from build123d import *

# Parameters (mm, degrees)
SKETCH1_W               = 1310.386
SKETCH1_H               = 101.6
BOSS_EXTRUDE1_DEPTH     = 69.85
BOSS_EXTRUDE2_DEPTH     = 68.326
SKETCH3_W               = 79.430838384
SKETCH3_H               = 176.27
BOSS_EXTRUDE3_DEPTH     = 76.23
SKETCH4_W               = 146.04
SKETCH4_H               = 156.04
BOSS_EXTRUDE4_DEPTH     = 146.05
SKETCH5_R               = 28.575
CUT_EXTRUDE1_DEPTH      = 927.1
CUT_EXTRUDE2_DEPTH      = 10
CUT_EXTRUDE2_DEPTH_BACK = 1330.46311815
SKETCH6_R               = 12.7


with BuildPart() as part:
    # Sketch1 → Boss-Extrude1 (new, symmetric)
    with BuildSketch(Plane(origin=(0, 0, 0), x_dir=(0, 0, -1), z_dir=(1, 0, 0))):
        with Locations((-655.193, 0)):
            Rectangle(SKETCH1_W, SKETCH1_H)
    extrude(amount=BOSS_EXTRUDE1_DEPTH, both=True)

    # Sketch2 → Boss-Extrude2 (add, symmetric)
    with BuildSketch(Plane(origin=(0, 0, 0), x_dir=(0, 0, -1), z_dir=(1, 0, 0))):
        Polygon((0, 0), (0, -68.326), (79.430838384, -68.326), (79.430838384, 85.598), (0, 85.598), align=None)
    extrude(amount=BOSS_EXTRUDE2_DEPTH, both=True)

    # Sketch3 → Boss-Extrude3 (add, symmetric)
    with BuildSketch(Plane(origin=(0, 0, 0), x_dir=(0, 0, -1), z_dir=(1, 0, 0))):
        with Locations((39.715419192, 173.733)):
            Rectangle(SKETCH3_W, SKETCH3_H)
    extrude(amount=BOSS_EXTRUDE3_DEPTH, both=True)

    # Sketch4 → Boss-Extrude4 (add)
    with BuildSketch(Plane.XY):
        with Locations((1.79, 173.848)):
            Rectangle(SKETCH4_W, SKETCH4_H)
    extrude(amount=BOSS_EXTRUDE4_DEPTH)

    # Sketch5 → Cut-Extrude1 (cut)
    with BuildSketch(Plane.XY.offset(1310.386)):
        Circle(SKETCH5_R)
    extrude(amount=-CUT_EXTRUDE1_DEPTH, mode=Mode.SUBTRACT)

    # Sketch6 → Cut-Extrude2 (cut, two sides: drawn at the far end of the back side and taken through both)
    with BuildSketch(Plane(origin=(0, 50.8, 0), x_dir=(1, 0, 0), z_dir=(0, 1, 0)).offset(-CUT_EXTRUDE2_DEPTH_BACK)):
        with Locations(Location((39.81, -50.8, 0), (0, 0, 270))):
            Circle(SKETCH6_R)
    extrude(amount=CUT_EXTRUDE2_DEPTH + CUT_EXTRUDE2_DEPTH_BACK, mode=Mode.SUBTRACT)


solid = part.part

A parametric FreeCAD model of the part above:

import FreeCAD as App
import Part
import Sketcher
Q = App.Units.Quantity

doc = App.newDocument("Part")
body = doc.addObject("PartDesign::Body", "Body")

# Sketch on YZ plane
sketch1 = body.newObject("Sketcher::SketchObject", "Sketch")
sketch1.AttachmentSupport = (doc.getObject("YZ_Plane"), [""])
sketch1.MapMode = "FlatFace"
sketch1.addGeometry(Part.LineSegment(App.Vector(51, 1310, 0), App.Vector(-51, 1310, 0)), False)
sketch1.addGeometry(Part.LineSegment(App.Vector(-51, 1310, 0), App.Vector(-51, 0, 0)), False)
sketch1.addGeometry(Part.LineSegment(App.Vector(-51, 0, 0), App.Vector(51, 0, 0)), False)
sketch1.addGeometry(Part.LineSegment(App.Vector(51, 0, 0), App.Vector(51, 1310, 0)), False)
sketch1.addConstraint(Sketcher.Constraint("Coincident", 0, 2, 1, 1))
sketch1.addConstraint(Sketcher.Constraint("Coincident", 1, 2, 2, 1))
sketch1.addConstraint(Sketcher.Constraint("Coincident", 2, 2, 3, 1))
sketch1.addConstraint(Sketcher.Constraint("Coincident", 3, 2, 0, 1))
sketch1.addConstraint(Sketcher.Constraint("Horizontal", 0))
sketch1.addConstraint(Sketcher.Constraint("Vertical", 1))
sketch1.addConstraint(Sketcher.Constraint("Horizontal", 2))
sketch1.addConstraint(Sketcher.Constraint("Vertical", 3))
sketch1.addConstraint(Sketcher.Constraint("Symmetric", 1, 2, 2, 2, -1, 1))
sketch1.addConstraint(Sketcher.Constraint("DistanceX", 0, 2, 0, 1, Q("4 in")))
sketch1.addConstraint(Sketcher.Constraint("DistanceY", 1, 2, 1, 1, Q("51.59 in")))
pad1 = body.newObject("PartDesign::Pad", "Pad")
pad1.Profile = sketch1
pad1.Length = Q("5.5 in")
pad1.Midplane = True

# Sketch on YZ plane
sketch2 = body.newObject("Sketcher::SketchObject", "Sketch001")
sketch2.AttachmentSupport = (doc.getObject("YZ_Plane"), [""])
sketch2.MapMode = "FlatFace"
sketch2.addGeometry(Part.LineSegment(App.Vector(-68, 0, 0), App.Vector(-68, -79, 0)), False)
sketch2.addGeometry(Part.LineSegment(App.Vector(-68, -79, 0), App.Vector(86, -79, 0)), False)
sketch2.addGeometry(Part.LineSegment(App.Vector(86, -79, 0), App.Vector(86, 0, 0)), False)
sketch2.addGeometry(Part.LineSegment(App.Vector(86, 0, 0), App.Vector(-68, 0, 0)), False)
sketch2.addConstraint(Sketcher.Constraint("Coincident", 0, 2, 1, 1))
sketch2.addConstraint(Sketcher.Constraint("Coincident", 1, 2, 2, 1))
sketch2.addConstraint(Sketcher.Constraint("Coincident", 2, 2, 3, 1))
sketch2.addConstraint(Sketcher.Constraint("Coincident", 3, 2, 0, 1))
sketch2.addConstraint(Sketcher.Constraint("Vertical", 0))
sketch2.addConstraint(Sketcher.Constraint("Horizontal", 1))
sketch2.addConstraint(Sketcher.Constraint("Vertical", 2))
sketch2.addConstraint(Sketcher.Constraint("Horizontal", 3))
sketch2.addConstraint(Sketcher.Constraint("PointOnObject", 2, 2, -1))
sketch2.addConstraint(Sketcher.Constraint("DistanceX", 1, 1, 1, 2, Q("6.06 in")))
sketch2.addConstraint(Sketcher.Constraint("DistanceX", 0, 2, -1, 1, Q("2.69 in")))
sketch2.addConstraint(Sketcher.Constraint("DistanceY", 0, 2, 0, 1, Q("79.430838 mm")))
pad2 = body.newObject("PartDesign::Pad", "Pad001")
pad2.Profile = sketch2
pad2.Length = Q("5.38 in")
pad2.Midplane = True

# Sketch on YZ plane
sketch3 = body.newObject("Sketcher::SketchObject", "Sketch002")
sketch3.AttachmentSupport = (doc.getObject("YZ_Plane"), [""])
sketch3.MapMode = "FlatFace"
sketch3.addGeometry(Part.LineSegment(App.Vector(262, 0, 0), App.Vector(86, 0, 0)), False)
sketch3.addGeometry(Part.LineSegment(App.Vector(86, 0, 0), App.Vector(86, -79, 0)), False)
sketch3.addGeometry(Part.LineSegment(App.Vector(86, -79, 0), App.Vector(262, -79, 0)), False)
sketch3.addGeometry(Part.LineSegment(App.Vector(262, -79, 0), App.Vector(262, 0, 0)), False)
sketch3.addConstraint(Sketcher.Constraint("Coincident", 0, 2, 1, 1))
sketch3.addConstraint(Sketcher.Constraint("Coincident", 1, 2, 2, 1))
sketch3.addConstraint(Sketcher.Constraint("Coincident", 2, 2, 3, 1))
sketch3.addConstraint(Sketcher.Constraint("Coincident", 3, 2, 0, 1))
sketch3.addConstraint(Sketcher.Constraint("Horizontal", 0))
sketch3.addConstraint(Sketcher.Constraint("Vertical", 1))
sketch3.addConstraint(Sketcher.Constraint("Horizontal", 2))
sketch3.addConstraint(Sketcher.Constraint("Vertical", 3))
sketch3.addConstraint(Sketcher.Constraint("PointOnObject", 0, 2, -1))
sketch3.addConstraint(Sketcher.Constraint("DistanceX", -1, 1, 0, 2, Q("3.37 in")))
sketch3.addConstraint(Sketcher.Constraint("DistanceX", 0, 2, 0, 1, Q("176.27 mm")))
sketch3.addConstraint(Sketcher.Constraint("DistanceY", 1, 2, 1, 1, Q("79.430838 mm")))
pad3 = body.newObject("PartDesign::Pad", "Pad002")
pad3.Profile = sketch3
pad3.Length = 152.46
pad3.Midplane = True

# Sketch on XY plane
sketch4 = body.newObject("Sketcher::SketchObject", "Sketch003")
sketch4.AttachmentSupport = (doc.getObject("XY_Plane"), [""])
sketch4.MapMode = "FlatFace"
sketch4.addGeometry(Part.LineSegment(App.Vector(-71, 252, 0), App.Vector(-71, 96, 0)), False)
sketch4.addGeometry(Part.LineSegment(App.Vector(-71, 96, 0), App.Vector(75, 96, 0)), False)
sketch4.addGeometry(Part.LineSegment(App.Vector(75, 96, 0), App.Vector(75, 252, 0)), False)
sketch4.addGeometry(Part.LineSegment(App.Vector(75, 252, 0), App.Vector(-71, 252, 0)), False)
sketch4.addConstraint(Sketcher.Constraint("Coincident", 0, 2, 1, 1))
sketch4.addConstraint(Sketcher.Constraint("Coincident", 1, 2, 2, 1))
sketch4.addConstraint(Sketcher.Constraint("Coincident", 2, 2, 3, 1))
sketch4.addConstraint(Sketcher.Constraint("Coincident", 3, 2, 0, 1))
sketch4.addConstraint(Sketcher.Constraint("Vertical", 0))
sketch4.addConstraint(Sketcher.Constraint("Horizontal", 1))
sketch4.addConstraint(Sketcher.Constraint("Vertical", 2))
sketch4.addConstraint(Sketcher.Constraint("Horizontal", 3))
sketch4.addConstraint(Sketcher.Constraint("DistanceX", 1, 1, 1, 2, Q("146.04 mm")))
sketch4.addConstraint(Sketcher.Constraint("DistanceY", 0, 2, 0, 1, Q("156.04 mm")))
sketch4.addConstraint(Sketcher.Constraint("DistanceX", 0, 2, -1, 1, Q("71.23 mm")))
sketch4.addConstraint(Sketcher.Constraint("DistanceY", -1, 1, 0, 2, Q("95.828 mm")))
pad4 = body.newObject("PartDesign::Pad", "Pad003")
pad4.Profile = sketch4
pad4.Length = Q("5.75 in")

# Sketch on XY plane
sketch5 = body.newObject("Sketcher::SketchObject", "Sketch004")
sketch5.AttachmentSupport = (doc.getObject("XY_Plane"), [""])
sketch5.MapMode = "FlatFace"
sketch5.AttachmentOffset = App.Placement(App.Vector(0, 0, 51.59 * 25.4), App.Rotation())
sketch5.addGeometry(Part.Circle(App.Vector(0, 0, 0), App.Vector(0, 0, 1), 29), False)
sketch5.addConstraint(Sketcher.Constraint("Coincident", 0, 3, -1, 1))
sketch5.addConstraint(Sketcher.Constraint("Diameter", 0, Q("2.25 in")))
pocket1 = body.newObject("PartDesign::Pocket", "Pocket")
pocket1.Profile = sketch5
pocket1.Length = Q("36.5 in")

# Sketch on XZ plane
sketch6 = body.newObject("Sketcher::SketchObject", "Sketch005")
sketch6.AttachmentSupport = (doc.getObject("XZ_Plane"), [""])
sketch6.MapMode = "FlatFace"
sketch6.AttachmentOffset = App.Placement(App.Vector(0, 0, -2 * 25.4), App.Rotation())
sketch6.addGeometry(Part.Circle(App.Vector(40, 51, 0), App.Vector(0, 0, 1), 13), False)
sketch6.addConstraint(Sketcher.Constraint("Diameter", 0, Q("1 in")))
sketch6.addConstraint(Sketcher.Constraint("DistanceY", -1, 1, 0, 3, Q("2 in")))
sketch6.addConstraint(Sketcher.Constraint("DistanceX", -1, 1, 0, 3, Q("39.81 mm")))
pocket2 = body.newObject("PartDesign::Pocket", "Pocket001")
pocket2.Profile = sketch6
pocket2.Type = "TwoLengths"
pocket2.Length = 10
pocket2.Length2 = 1330.463118

doc.recompute()
